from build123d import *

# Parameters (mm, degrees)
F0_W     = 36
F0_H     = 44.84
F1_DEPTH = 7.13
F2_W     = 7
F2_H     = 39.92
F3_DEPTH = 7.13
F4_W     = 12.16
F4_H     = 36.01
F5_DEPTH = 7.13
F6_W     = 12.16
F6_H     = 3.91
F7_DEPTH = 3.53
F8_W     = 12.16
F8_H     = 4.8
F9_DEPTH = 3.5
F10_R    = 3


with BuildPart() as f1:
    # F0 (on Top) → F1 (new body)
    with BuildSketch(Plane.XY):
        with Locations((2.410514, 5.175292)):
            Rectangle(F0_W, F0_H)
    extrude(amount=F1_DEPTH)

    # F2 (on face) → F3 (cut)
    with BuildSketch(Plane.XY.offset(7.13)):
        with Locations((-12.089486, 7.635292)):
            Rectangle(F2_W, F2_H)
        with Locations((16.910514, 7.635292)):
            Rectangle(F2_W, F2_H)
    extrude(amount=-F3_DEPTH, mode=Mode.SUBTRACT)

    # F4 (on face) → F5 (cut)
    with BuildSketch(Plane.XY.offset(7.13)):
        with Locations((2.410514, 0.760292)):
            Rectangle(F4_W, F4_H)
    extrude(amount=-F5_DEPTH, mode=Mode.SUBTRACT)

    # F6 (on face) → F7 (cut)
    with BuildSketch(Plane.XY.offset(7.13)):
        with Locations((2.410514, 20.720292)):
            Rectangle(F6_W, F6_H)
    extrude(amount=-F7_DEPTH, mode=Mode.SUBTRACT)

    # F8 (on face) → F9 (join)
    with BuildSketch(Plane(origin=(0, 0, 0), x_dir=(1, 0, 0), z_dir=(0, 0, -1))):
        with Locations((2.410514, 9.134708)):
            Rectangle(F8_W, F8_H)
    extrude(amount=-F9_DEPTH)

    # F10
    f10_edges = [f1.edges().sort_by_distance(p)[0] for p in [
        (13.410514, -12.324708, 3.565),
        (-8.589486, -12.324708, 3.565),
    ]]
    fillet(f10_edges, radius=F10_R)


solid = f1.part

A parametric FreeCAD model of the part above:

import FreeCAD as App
import Part
import Sketcher
Q = App.Units.Quantity


def edges_at(feature, points):
    """Names of the edges that pass closest to the given points."""
    edges = feature.Shape.Edges
    near = lambda p: min(range(len(edges)), key=lambda i: edges[i].distToShape(Part.Vertex(*p))[0])
    return sorted({f"Edge{near(p) + 1}" for p in points})


def add_polygon(sketch, points):
    """Adds a closed chain of lines whose ends are joined by coincident constraints."""
    first, n = sketch.GeometryCount, len(points)
    for a, b in zip(points, points[1:] + points[:1]):
        sketch.addGeometry(Part.LineSegment(App.Vector(*a, 0), App.Vector(*b, 0)), False)
    for i in range(n):
        sketch.addConstraint(Sketcher.Constraint("Coincident", first + i, 2, first + (i + 1) % n, 1))

doc = App.newDocument("Part")
body = doc.addObject("PartDesign::Body", "Body")

sketch1 = body.newObject("Sketcher::SketchObject", "Sketch")
sketch1.AttachmentSupport = (doc.getObject("XY_Plane"), [""])
sketch1.MapMode = "FlatFace"
add_polygon(sketch1, [(-15.589486, 27.595292), (-15.589486, -17.244708), (20.410514, -17.244708), (20.410514, 27.595292)])
sketch1.addConstraint([
    Sketcher.Constraint("Vertical", 0),
    Sketcher.Constraint("Horizontal", 1),
    Sketcher.Constraint("Vertical", 2),
    Sketcher.Constraint("Horizontal", 3),
    Sketcher.Constraint("DistanceX", 1, 1, 1, 2, Q("36 mm")),
    Sketcher.Constraint("DistanceY", 0, 2, 0, 1, Q("44.84 mm")),
    Sketcher.Constraint("DistanceX", 0, 2, -1, 1, Q("15.589486 mm")),
    Sketcher.Constraint("DistanceY", 0, 2, -1, 1, Q("17.244708 mm")),
])
pad1 = body.newObject("PartDesign::Pad", "Pad")
pad1.Profile = sketch1
pad1.Length = 7.13

sketch2 = body.newObject("Sketcher::SketchObject", "Sketch001")
sketch2.AttachmentSupport = (doc.getObject("XY_Plane"), [""])
sketch2.MapMode = "FlatFace"
sketch2.AttachmentOffset = App.Placement(App.Vector(0, 0, 7.13), App.Rotation())
add_polygon(sketch2, [(-15.589486, 27.595292), (-15.589486, -12.324708), (-8.589486, -12.324708), (-8.589486, 27.595292)])
add_polygon(sketch2, [(13.410514, 27.595292), (13.410514, -12.324708), (20.410514, -12.324708), (20.410514, 27.595292)])
sketch2.addConstraint([
    Sketcher.Constraint("Vertical", 0),
    Sketcher.Constraint("Horizontal", 1),
    Sketcher.Constraint("Vertical", 2),
    Sketcher.Constraint("Horizontal", 3),
    Sketcher.Constraint("Vertical", 4),
    Sketcher.Constraint("Horizontal", 5),
    Sketcher.Constraint("Vertical", 6),
    Sketcher.Constraint("Horizontal", 7),
    Sketcher.Constraint("Horizontal", 1, 2, 4, 2),
    Sketcher.Constraint("Horizontal", 3, 2, 6, 2),
    Sketcher.Constraint("Equal", 3, 5),
    Sketcher.Constraint("DistanceX", 1, 1, 1, 2, Q("7 mm")),
    Sketcher.Constraint("DistanceX", 1, 2, 4, 2, Q("22 mm")),
    Sketcher.Constraint("DistanceY", 0, 2, 0, 1, Q("39.92 mm")),
    Sketcher.Constraint("DistanceX", 0, 2, -1, 1, Q("15.589486 mm")),
    Sketcher.Constraint("DistanceY", 0, 2, -1, 1, Q("12.324708 mm")),
])
pocket1 = body.newObject("PartDesign::Pocket", "Pocket")
pocket1.Profile = sketch2
pocket1.Length = 7.13

sketch3 = body.newObject("Sketcher::SketchObject", "Sketch002")
sketch3.AttachmentSupport = (doc.getObject("XY_Plane"), [""])
sketch3.MapMode = "FlatFace"
sketch3.AttachmentOffset = App.Placement(App.Vector(0, 0, 7.13), App.Rotation())
add_polygon(sketch3, [(-3.669486, 18.765292), (-3.669486, -17.244708), (8.490514, -17.244708), (8.490514, 18.765292)])
sketch3.addConstraint([
    Sketcher.Constraint("Vertical", 0),
    Sketcher.Constraint("Horizontal", 1),
    Sketcher.Constraint("Vertical", 2),
    Sketcher.Constraint("Horizontal", 3),
    Sketcher.Constraint("DistanceX", 1, 1, 1, 2, Q("12.16 mm")),
    Sketcher.Constraint("DistanceY", 0, 2, 0, 1, Q("36.01 mm")),
    Sketcher.Constraint("DistanceY", -1, 1, 2, 2, Q("18.765292 mm")),
    Sketcher.Constraint("DistanceX", 0, 2, -1, 1, Q("3.669486 mm")),
])
pocket2 = body.newObject("PartDesign::Pocket", "Pocket001")
pocket2.Profile = sketch3
pocket2.Length = 7.13

sketch4 = body.newObject("Sketcher::SketchObject", "Sketch003")
sketch4.AttachmentSupport = (doc.getObject("XY_Plane"), [""])
sketch4.MapMode = "FlatFace"
sketch4.AttachmentOffset = App.Placement(App.Vector(0, 0, 7.13), App.Rotation())
add_polygon(sketch4, [(-3.669486, 22.675292), (-3.669486, 18.765292), (8.490514, 18.765292), (8.490514, 22.675292)])
sketch4.addConstraint([
    Sketcher.Constraint("Vertical", 0),
    Sketcher.Constraint("Horizontal", 1),
    Sketcher.Constraint("Vertical", 2),
    Sketcher.Constraint("Horizontal", 3),
    Sketcher.Constraint("DistanceX", 1, 1, 1, 2, Q("12.16 mm")),
    Sketcher.Constraint("DistanceY", 0, 2, 0, 1, Q("3.91 mm")),
    Sketcher.Constraint("DistanceY", -1, 1, 0, 2, Q("18.765292 mm")),
    Sketcher.Constraint("DistanceX", 0, 2, -1, 1, Q("3.669486 mm")),
])
pocket3 = body.newObject("PartDesign::Pocket", "Pocket002")
pocket3.Profile = sketch4
pocket3.Length = 3.53

sketch5 = body.newObject("Sketcher::SketchObject", "Sketch004")
sketch5.AttachmentSupport = (doc.getObject("XY_Plane"), [""])
sketch5.MapMode = "FlatFace"
add_polygon(sketch5, [(-3.669486, -11.534708), (-3.669486, -6.734708), (8.490514, -6.734708), (8.490514, -11.534708)])
sketch5.addConstraint([
    Sketcher.Constraint("Vertical", 0),
    Sketcher.Constraint("Horizontal", 1),
    Sketcher.Constraint("Vertical", 2),
    Sketcher.Constraint("Horizontal", 3),
    Sketcher.Constraint("DistanceY", 0, 1, 0, 2, Q("4.8 mm")),
    Sketcher.Constraint("DistanceX", 1, 1, 1, 2, Q("12.16 mm")),
    Sketcher.Constraint("DistanceY", 0, 2, -1, 1, Q("6.734708 mm")),
    Sketcher.Constraint("DistanceX", 0, 2, -1, 1, Q("3.669486 mm")),
])
pad2 = body.newObject("PartDesign::Pad", "Pad001")
pad2.Profile = sketch5
pad2.Length = 3.5
doc.recompute()

fillet = body.newObject("PartDesign::Fillet", "Fillet")
fillet.Base = (pad2, edges_at(pad2, [(13.411, -12.325, 3.565), (-8.589, -12.325, 3.565)]))
fillet.Radius = 3

doc.recompute()
